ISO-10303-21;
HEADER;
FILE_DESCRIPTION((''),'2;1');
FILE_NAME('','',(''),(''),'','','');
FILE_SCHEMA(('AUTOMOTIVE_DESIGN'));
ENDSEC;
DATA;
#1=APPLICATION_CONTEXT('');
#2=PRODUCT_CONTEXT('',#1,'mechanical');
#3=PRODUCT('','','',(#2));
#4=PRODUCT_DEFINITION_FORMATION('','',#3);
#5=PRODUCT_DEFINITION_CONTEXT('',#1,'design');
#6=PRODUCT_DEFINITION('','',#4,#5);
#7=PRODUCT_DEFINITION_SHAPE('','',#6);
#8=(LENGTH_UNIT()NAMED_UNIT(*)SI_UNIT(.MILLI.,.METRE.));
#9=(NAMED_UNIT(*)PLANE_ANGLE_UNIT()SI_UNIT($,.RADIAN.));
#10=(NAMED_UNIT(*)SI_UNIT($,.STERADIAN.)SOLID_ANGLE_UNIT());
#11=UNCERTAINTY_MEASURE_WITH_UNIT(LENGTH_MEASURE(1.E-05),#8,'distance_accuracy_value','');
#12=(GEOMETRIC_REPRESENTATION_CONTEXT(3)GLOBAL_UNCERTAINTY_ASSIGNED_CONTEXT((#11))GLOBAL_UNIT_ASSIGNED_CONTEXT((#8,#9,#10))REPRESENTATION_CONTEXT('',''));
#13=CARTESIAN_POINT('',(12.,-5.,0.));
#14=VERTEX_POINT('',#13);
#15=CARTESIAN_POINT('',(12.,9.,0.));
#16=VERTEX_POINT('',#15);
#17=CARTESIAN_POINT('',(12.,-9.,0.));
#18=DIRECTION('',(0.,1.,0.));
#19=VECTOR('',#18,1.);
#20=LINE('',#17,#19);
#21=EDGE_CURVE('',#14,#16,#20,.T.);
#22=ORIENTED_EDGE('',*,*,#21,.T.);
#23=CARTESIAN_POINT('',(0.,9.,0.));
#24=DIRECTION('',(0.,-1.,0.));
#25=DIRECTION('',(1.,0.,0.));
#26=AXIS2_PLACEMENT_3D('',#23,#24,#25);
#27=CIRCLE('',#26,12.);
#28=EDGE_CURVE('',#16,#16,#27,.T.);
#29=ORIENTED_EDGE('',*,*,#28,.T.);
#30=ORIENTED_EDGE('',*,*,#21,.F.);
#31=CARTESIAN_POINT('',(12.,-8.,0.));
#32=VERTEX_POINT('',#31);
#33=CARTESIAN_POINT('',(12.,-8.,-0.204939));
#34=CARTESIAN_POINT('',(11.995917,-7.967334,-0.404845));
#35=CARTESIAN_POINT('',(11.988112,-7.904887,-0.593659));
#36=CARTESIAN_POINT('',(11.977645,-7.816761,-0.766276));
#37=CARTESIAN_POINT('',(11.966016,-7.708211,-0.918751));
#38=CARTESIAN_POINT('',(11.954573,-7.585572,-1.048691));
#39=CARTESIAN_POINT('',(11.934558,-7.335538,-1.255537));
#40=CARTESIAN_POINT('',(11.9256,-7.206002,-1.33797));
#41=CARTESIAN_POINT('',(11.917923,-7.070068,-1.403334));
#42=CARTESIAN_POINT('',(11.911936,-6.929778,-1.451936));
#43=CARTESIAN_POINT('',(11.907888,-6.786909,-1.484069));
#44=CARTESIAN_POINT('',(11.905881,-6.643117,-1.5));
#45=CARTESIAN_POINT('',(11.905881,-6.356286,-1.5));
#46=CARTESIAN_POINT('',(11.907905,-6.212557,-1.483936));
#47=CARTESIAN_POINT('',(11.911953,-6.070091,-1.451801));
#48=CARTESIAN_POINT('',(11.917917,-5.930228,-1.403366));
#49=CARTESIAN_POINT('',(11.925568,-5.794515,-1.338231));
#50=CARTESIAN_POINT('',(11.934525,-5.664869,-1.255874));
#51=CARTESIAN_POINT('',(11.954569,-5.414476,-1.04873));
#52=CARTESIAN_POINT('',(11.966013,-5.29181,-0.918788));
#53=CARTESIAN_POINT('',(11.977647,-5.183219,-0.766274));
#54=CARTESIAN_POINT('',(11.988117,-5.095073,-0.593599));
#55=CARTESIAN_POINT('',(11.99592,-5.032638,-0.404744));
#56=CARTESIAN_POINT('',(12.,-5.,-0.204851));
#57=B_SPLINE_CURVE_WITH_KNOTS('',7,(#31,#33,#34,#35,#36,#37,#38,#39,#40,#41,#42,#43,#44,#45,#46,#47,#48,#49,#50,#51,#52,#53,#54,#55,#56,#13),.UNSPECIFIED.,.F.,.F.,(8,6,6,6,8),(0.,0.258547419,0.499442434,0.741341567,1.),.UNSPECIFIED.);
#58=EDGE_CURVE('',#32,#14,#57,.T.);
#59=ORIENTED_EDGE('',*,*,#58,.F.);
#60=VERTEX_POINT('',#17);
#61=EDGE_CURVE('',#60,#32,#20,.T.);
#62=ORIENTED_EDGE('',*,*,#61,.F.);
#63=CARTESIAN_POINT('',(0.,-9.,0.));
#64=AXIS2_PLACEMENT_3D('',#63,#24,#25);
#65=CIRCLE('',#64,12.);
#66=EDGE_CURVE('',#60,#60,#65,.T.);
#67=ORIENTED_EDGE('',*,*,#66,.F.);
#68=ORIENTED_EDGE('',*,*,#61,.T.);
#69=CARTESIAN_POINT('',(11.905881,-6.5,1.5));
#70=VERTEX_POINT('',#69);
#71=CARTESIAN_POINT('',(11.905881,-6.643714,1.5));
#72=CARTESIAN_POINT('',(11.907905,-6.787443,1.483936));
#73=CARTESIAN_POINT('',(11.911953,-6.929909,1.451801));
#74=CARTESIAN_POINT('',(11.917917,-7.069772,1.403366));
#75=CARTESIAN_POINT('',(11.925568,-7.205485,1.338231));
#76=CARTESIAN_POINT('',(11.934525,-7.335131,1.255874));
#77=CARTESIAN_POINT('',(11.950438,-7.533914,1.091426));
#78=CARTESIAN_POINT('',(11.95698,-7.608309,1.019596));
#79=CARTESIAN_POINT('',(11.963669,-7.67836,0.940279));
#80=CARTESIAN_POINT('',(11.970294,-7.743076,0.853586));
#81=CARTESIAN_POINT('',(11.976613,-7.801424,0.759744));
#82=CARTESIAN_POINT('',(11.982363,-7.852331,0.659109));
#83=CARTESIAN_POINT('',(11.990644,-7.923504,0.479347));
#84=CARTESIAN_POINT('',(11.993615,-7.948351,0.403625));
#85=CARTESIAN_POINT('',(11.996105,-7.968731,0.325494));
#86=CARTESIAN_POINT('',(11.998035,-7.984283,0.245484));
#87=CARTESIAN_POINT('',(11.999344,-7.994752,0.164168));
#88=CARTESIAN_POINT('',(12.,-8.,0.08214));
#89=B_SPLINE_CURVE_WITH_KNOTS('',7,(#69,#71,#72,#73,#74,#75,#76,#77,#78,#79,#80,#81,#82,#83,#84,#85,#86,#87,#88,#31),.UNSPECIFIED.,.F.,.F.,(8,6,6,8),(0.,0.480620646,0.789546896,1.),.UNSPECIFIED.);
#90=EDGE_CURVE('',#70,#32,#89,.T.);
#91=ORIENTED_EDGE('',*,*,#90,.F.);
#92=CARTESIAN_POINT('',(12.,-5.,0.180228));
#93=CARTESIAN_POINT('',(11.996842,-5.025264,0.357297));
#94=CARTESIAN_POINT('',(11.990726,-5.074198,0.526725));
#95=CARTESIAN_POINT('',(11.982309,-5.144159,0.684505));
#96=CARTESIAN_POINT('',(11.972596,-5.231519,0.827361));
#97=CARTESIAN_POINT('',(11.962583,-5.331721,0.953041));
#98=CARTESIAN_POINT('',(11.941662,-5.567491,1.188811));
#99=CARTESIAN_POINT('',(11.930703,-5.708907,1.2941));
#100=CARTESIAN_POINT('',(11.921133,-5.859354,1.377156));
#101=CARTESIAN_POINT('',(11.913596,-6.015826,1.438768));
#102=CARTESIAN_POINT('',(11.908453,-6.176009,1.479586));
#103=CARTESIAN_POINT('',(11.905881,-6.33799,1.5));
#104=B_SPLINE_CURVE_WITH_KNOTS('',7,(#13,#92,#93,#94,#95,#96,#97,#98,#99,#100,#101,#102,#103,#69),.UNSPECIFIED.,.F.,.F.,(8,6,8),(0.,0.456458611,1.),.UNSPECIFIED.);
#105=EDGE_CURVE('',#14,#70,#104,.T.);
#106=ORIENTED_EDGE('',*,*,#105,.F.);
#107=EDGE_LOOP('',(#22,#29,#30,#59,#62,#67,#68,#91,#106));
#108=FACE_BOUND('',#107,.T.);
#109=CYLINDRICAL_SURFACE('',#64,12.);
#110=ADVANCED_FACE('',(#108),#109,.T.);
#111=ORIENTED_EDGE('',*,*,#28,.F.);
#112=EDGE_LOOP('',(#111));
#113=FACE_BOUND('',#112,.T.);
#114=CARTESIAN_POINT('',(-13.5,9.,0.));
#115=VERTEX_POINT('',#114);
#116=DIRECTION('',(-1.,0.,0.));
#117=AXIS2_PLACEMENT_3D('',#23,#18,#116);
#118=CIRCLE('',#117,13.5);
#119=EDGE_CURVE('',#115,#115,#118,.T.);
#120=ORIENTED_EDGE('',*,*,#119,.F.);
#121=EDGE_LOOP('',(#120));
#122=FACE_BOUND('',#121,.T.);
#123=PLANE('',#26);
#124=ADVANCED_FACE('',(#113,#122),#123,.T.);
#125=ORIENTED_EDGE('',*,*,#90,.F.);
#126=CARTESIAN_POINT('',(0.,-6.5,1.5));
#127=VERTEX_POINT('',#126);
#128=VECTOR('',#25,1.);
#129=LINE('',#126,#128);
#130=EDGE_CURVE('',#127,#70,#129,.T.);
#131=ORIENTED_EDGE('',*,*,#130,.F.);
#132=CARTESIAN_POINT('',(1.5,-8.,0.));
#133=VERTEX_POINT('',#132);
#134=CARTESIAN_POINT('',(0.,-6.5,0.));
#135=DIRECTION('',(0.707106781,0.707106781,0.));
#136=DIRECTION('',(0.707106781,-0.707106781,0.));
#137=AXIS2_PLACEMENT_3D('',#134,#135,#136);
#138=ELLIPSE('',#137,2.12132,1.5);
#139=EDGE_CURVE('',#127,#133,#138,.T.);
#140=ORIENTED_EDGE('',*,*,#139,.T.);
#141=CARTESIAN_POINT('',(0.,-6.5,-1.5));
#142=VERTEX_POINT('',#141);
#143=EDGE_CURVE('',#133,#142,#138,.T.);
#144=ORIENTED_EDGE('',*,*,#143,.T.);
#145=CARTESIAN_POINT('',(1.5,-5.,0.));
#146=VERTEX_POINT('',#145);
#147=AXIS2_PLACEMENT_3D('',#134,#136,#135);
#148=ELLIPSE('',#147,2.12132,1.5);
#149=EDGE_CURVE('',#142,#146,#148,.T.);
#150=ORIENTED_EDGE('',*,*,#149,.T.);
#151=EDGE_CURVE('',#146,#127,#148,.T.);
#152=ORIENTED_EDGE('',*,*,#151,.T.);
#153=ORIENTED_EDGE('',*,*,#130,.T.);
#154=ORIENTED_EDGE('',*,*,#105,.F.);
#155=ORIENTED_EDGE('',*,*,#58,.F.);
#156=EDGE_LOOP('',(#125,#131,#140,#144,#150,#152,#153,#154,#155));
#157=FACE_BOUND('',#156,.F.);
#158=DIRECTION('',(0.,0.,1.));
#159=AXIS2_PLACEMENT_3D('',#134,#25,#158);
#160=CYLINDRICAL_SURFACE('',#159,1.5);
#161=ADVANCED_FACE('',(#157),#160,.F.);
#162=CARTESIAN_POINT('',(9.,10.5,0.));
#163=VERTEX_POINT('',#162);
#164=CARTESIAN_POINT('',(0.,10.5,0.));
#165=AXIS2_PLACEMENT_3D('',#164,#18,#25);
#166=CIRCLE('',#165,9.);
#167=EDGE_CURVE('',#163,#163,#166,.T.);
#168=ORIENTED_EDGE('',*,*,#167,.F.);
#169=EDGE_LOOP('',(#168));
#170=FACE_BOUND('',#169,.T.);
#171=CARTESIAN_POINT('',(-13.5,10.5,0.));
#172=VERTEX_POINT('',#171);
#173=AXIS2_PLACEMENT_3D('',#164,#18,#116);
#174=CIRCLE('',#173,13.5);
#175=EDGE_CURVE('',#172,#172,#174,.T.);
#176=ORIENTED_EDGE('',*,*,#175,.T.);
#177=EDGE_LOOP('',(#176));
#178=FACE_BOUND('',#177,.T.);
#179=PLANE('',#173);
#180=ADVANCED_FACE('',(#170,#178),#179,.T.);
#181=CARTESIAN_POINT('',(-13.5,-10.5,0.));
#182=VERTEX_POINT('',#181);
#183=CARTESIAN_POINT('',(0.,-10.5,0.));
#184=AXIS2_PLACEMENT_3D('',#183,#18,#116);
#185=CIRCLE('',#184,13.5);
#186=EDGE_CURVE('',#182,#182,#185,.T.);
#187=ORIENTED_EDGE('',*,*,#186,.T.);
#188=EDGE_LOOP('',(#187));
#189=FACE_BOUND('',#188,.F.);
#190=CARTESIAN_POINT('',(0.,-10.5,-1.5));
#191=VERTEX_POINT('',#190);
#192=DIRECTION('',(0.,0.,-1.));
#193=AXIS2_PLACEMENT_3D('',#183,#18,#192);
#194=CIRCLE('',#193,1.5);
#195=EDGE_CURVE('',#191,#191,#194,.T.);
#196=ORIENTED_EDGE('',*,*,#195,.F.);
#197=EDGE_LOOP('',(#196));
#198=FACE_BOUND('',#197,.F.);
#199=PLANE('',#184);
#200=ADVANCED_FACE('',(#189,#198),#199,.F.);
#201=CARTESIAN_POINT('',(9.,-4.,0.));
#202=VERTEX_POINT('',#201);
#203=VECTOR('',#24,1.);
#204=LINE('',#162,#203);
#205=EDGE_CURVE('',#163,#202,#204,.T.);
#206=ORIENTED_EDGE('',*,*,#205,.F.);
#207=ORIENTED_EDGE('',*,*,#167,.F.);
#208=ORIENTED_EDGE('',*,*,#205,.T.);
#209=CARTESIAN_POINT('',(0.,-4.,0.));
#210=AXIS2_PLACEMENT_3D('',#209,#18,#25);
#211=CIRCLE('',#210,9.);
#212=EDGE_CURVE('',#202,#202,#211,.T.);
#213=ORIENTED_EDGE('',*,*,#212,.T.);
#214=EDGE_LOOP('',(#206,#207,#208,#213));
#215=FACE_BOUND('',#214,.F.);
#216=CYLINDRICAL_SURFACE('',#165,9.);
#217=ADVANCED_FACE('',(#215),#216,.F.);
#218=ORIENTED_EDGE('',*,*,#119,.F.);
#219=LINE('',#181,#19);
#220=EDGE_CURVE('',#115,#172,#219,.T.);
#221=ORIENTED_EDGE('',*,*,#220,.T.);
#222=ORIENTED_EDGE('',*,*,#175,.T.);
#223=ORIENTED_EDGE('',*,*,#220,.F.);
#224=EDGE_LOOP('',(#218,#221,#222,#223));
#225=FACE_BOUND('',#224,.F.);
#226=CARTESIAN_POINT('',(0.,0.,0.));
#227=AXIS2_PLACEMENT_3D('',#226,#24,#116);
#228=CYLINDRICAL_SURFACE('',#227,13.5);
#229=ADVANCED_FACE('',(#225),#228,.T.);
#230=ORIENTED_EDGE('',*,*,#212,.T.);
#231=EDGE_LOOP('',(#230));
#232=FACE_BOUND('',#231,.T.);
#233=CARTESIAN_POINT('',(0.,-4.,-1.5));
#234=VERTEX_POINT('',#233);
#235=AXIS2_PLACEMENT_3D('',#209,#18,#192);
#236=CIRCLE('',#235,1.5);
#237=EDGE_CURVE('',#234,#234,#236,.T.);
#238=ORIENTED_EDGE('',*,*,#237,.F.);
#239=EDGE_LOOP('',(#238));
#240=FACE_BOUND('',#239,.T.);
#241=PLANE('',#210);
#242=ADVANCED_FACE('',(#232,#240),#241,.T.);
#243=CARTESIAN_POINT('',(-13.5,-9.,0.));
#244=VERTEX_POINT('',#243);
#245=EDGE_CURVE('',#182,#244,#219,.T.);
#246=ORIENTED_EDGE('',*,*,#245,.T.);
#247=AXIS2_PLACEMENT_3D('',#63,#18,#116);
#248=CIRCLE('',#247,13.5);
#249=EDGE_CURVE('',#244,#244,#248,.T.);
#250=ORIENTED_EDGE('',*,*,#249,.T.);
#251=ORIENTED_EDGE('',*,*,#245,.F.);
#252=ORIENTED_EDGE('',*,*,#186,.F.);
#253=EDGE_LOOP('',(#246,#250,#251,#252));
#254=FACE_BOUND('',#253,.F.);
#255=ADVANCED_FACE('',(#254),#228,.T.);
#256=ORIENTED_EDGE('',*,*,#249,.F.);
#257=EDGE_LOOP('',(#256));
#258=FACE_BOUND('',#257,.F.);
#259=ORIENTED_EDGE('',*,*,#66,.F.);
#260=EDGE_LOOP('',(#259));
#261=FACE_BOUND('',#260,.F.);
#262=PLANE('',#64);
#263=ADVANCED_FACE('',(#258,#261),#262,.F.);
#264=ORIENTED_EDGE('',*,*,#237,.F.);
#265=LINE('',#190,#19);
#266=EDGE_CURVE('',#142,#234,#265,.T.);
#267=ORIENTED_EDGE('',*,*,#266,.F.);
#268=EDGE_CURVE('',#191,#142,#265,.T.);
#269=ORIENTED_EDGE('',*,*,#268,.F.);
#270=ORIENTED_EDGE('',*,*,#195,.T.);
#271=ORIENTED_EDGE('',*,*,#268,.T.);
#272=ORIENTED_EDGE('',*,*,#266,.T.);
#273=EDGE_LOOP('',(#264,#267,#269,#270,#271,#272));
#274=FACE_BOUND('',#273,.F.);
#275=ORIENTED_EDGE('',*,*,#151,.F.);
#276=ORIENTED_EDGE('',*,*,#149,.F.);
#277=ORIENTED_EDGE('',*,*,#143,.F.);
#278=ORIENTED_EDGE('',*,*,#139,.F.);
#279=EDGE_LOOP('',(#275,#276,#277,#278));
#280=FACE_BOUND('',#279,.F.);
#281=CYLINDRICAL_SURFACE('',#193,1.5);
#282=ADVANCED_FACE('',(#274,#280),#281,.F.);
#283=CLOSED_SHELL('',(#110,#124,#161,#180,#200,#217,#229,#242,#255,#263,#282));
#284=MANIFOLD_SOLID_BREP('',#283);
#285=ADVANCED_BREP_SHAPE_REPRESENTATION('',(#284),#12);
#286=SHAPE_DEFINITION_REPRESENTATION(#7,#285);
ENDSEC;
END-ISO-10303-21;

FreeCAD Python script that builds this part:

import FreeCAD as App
import Part
import Sketcher
from FreeCAD import Vector
Q = App.Units.Quantity

doc = App.newDocument("Part")
body = doc.addObject("PartDesign::Body", "Body")

# Sketch on XZ plane
sketch1 = body.newObject("Sketcher::SketchObject", "Sketch")
sketch1.AttachmentSupport = (doc.getObject("XZ_Plane"), [""])
sketch1.MapMode = "FlatFace"
sketch1.addGeometry(Part.Circle(Vector(0, 0, 0), Vector(0, 0, 1), 13.5), False)
sketch1.addConstraint([
    Sketcher.Constraint("Coincident", 0, 3, -1, 1),
    Sketcher.Constraint("Diameter", 0, Q("27 mm")),
])
pad1 = body.newObject("PartDesign::Pad", "Pad")
pad1.Profile = sketch1
pad1.Length = 21
pad1.Midplane = True

# Sketch on YZ plane
sketch2 = body.newObject("Sketcher::SketchObject", "Sketch001")
sketch2.AttachmentSupport = (doc.getObject("YZ_Plane"), [""])
sketch2.MapMode = "FlatFace"
sketch2.addGeometry(Part.Circle(Vector(-6.5, 0, 0), Vector(0, 0, 1), 1.5), False)
sketch2.addConstraint([
    Sketcher.Constraint("PointOnObject", 0, 3, -1),
    Sketcher.Constraint("Diameter", 0, Q("3 mm")),
    Sketcher.Constraint("DistanceX", 0, 3, -1, 1, Q("6.5 mm")),
])
doc.recompute()
hole = body.newObject("PartDesign::Hole", "Hole")
hole.Profile = sketch2
hole.ThreadType = "None"
hole.Diameter = 3
hole.DepthType = "ThroughAll"
hole.Reversed = True

# Sketch on XZ plane
sketch3 = body.newObject("Sketcher::SketchObject", "Sketch002")
sketch3.AttachmentSupport = (doc.getObject("XZ_Plane"), [""])
sketch3.MapMode = "FlatFace"
sketch3.addGeometry([
    Part.Circle(Vector(0, 0, 0), Vector(0, 0, 1), 16.5),
    Part.Circle(Vector(0, 0, 0), Vector(0, 0, 1), 13.5),
], False)
sketch3.addConstraint([
    Sketcher.Constraint("Coincident", 0, 3, -1, 1),
    Sketcher.Constraint("Coincident", 1, 3, -1, 1),
    Sketcher.Constraint("Diameter", 0, Q("33 mm")),
    Sketcher.Constraint("Diameter", 1, Q("27 mm")),
])
pad2 = body.newObject("PartDesign::Pad", "Pad001")
pad2.Profile = sketch3
pad2.Length = 18
pad2.Midplane = True

# Sketch on XZ plane
sketch4 = body.newObject("Sketcher::SketchObject", "Sketch003")
sketch4.AttachmentSupport = (doc.getObject("XZ_Plane"), [""])
sketch4.MapMode = "FlatFace"
sketch4.AttachmentOffset = App.Placement(Vector(0, 0, -10.5), App.Rotation())
sketch4.addGeometry(Part.Circle(Vector(0, 0, 0), Vector(0, 0, 1), 9), False)
sketch4.addConstraint([
    Sketcher.Constraint("Coincident", 0, 3, -1, 1),
    Sketcher.Constraint("Diameter", 0, Q("18 mm")),
])
pocket1 = body.newObject("PartDesign::Pocket", "Pocket")
pocket1.Profile = sketch4
pocket1.Length = 14.5
pocket1.Reversed = True

# Sketch on XZ plane
sketch5 = body.newObject("Sketcher::SketchObject", "Sketch004")
sketch5.AttachmentSupport = (doc.getObject("XZ_Plane"), [""])
sketch5.MapMode = "FlatFace"
sketch5.AttachmentOffset = App.Placement(Vector(0, 0, 10.5), App.Rotation())
sketch5.addGeometry(Part.Circle(Vector(0, 0, 0), Vector(0, 0, 1), 1.5), False)
sketch5.addConstraint([
    Sketcher.Constraint("Coincident", 0, 3, -1, 1),
    Sketcher.Constraint("Diameter", 0, Q("3 mm")),
])
doc.recompute()
hole2 = body.newObject("PartDesign::Hole", "Hole001")
hole2.Profile = sketch5
hole2.ThreadType = "None"
hole2.Diameter = 3
hole2.DepthType = "ThroughAll"

# Sketch on XZ plane
sketch6 = body.newObject("Sketcher::SketchObject", "Sketch005")
sketch6.AttachmentSupport = (doc.getObject("XZ_Plane"), [""])
sketch6.MapMode = "FlatFace"
sketch6.AttachmentOffset = App.Placement(Vector(0, 0, 9), App.Rotation())
sketch6.addGeometry([
    Part.Circle(Vector(0, 0, 0), Vector(0, 0, 1), 16.5),
    Part.Circle(Vector(0, 0, 0), Vector(0, 0, 1), 12),
], False)
sketch6.addConstraint([
    Sketcher.Constraint("Coincident", 0, 3, -1, 1),
    Sketcher.Constraint("Coincident", 1, 3, -1, 1),
    Sketcher.Constraint("Diameter", 1, Q("24 mm")),
    Sketcher.Constraint("Diameter", 0, Q("33 mm")),
])
pocket2 = body.newObject("PartDesign::Pocket", "Pocket001")
pocket2.Profile = sketch6
pocket2.Length = 18

doc.recompute()
